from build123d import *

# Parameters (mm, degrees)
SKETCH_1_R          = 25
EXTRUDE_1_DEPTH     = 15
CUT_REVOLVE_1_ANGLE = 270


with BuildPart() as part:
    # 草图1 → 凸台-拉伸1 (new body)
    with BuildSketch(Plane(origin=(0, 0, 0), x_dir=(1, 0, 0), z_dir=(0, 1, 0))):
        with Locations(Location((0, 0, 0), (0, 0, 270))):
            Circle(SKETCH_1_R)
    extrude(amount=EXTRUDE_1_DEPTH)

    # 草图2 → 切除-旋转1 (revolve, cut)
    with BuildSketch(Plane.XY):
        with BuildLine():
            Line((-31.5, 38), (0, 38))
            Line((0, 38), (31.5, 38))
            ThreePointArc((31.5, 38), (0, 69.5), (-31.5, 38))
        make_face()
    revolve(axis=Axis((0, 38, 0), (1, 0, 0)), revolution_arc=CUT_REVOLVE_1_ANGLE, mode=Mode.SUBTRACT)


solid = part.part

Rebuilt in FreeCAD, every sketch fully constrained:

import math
import FreeCAD as App
import Part
import Sketcher
Q = App.Units.Quantity

doc = App.newDocument("Part")
params = doc.addObject("Spreadsheet::Sheet", "Params")
for row, (alias, value) in enumerate([
    ("sketch1_diameter", "50 mm"),
    ("pad1_length", "15 mm"),
    ("sketch2_radius", "31.5 mm"),
    ("groove_angle", "270 deg"),
], start=1):
    params.set(f"A{row}", alias)
    params.set(f"B{row}", "=" + value)
    params.setAlias(f"B{row}", alias)

body = doc.addObject("PartDesign::Body", "Body")

# Sketch on XZ plane
sketch1 = body.newObject("Sketcher::SketchObject", "Sketch")
sketch1.AttachmentSupport = (doc.getObject("XZ_Plane"), [""])
sketch1.MapMode = "FlatFace"
sketch1.addGeometry(Part.Circle(App.Vector(0, 0, 0), App.Vector(0, 0, 1), 25), False)
sketch1.addConstraint([
    Sketcher.Constraint("Coincident", 0, 3, -1, 1),
    Sketcher.Constraint("Diameter", 0, Q("50 mm")),
])
sketch1.setExpression("Constraints[1]", "Params.sketch1_diameter")
pad1 = body.newObject("PartDesign::Pad", "Pad")
pad1.Profile = sketch1
pad1.setExpression("Length", "Params.pad1_length")
pad1.Reversed = True

# Sketch on XY plane
sketch2 = body.newObject("Sketcher::SketchObject", "Sketch001")
sketch2.AttachmentSupport = (doc.getObject("XY_Plane"), [""])
sketch2.MapMode = "FlatFace"
sketch2.addGeometry([
    Part.LineSegment(App.Vector(-32, 38, 0), App.Vector(32, 38, 0)),
    Part.ArcOfCircle(Part.Circle(App.Vector(0, 38, 0), App.Vector(0, 0, 1), 32), math.radians(0), math.radians(180)),
], False)
sketch2.addGeometry(Part.LineSegment(App.Vector(-32, 38, 0), App.Vector(32, 38, 0)), True)  # axis
sketch2.addConstraint([
    Sketcher.Constraint("Coincident", 0, 1, 1, 2),
    Sketcher.Constraint("Coincident", 1, 1, 0, 2),
    Sketcher.Constraint("Horizontal", 0),
    Sketcher.Constraint("Horizontal", 2),
    Sketcher.Constraint("Coincident", 2, 1, 0, 1),
    Sketcher.Constraint("PointOnObject", 1, 3, -2),
    Sketcher.Constraint("Horizontal", 1, 3, 0, 1),
    Sketcher.Constraint("Equal", 0, 2),
    Sketcher.Constraint("Radius", 1, Q("31.5 mm")),
    Sketcher.Constraint("DistanceY", -1, 1, 1, 3, Q("38 mm")),
])
sketch2.setExpression("Constraints[8]", "Params.sketch2_radius")
groove = body.newObject("PartDesign::Groove", "Groove")
groove.Profile = sketch2
groove.ReferenceAxis = (sketch2, ["Axis0"])
groove.setExpression("Angle", "Params.groove_angle")

doc.recompute()
